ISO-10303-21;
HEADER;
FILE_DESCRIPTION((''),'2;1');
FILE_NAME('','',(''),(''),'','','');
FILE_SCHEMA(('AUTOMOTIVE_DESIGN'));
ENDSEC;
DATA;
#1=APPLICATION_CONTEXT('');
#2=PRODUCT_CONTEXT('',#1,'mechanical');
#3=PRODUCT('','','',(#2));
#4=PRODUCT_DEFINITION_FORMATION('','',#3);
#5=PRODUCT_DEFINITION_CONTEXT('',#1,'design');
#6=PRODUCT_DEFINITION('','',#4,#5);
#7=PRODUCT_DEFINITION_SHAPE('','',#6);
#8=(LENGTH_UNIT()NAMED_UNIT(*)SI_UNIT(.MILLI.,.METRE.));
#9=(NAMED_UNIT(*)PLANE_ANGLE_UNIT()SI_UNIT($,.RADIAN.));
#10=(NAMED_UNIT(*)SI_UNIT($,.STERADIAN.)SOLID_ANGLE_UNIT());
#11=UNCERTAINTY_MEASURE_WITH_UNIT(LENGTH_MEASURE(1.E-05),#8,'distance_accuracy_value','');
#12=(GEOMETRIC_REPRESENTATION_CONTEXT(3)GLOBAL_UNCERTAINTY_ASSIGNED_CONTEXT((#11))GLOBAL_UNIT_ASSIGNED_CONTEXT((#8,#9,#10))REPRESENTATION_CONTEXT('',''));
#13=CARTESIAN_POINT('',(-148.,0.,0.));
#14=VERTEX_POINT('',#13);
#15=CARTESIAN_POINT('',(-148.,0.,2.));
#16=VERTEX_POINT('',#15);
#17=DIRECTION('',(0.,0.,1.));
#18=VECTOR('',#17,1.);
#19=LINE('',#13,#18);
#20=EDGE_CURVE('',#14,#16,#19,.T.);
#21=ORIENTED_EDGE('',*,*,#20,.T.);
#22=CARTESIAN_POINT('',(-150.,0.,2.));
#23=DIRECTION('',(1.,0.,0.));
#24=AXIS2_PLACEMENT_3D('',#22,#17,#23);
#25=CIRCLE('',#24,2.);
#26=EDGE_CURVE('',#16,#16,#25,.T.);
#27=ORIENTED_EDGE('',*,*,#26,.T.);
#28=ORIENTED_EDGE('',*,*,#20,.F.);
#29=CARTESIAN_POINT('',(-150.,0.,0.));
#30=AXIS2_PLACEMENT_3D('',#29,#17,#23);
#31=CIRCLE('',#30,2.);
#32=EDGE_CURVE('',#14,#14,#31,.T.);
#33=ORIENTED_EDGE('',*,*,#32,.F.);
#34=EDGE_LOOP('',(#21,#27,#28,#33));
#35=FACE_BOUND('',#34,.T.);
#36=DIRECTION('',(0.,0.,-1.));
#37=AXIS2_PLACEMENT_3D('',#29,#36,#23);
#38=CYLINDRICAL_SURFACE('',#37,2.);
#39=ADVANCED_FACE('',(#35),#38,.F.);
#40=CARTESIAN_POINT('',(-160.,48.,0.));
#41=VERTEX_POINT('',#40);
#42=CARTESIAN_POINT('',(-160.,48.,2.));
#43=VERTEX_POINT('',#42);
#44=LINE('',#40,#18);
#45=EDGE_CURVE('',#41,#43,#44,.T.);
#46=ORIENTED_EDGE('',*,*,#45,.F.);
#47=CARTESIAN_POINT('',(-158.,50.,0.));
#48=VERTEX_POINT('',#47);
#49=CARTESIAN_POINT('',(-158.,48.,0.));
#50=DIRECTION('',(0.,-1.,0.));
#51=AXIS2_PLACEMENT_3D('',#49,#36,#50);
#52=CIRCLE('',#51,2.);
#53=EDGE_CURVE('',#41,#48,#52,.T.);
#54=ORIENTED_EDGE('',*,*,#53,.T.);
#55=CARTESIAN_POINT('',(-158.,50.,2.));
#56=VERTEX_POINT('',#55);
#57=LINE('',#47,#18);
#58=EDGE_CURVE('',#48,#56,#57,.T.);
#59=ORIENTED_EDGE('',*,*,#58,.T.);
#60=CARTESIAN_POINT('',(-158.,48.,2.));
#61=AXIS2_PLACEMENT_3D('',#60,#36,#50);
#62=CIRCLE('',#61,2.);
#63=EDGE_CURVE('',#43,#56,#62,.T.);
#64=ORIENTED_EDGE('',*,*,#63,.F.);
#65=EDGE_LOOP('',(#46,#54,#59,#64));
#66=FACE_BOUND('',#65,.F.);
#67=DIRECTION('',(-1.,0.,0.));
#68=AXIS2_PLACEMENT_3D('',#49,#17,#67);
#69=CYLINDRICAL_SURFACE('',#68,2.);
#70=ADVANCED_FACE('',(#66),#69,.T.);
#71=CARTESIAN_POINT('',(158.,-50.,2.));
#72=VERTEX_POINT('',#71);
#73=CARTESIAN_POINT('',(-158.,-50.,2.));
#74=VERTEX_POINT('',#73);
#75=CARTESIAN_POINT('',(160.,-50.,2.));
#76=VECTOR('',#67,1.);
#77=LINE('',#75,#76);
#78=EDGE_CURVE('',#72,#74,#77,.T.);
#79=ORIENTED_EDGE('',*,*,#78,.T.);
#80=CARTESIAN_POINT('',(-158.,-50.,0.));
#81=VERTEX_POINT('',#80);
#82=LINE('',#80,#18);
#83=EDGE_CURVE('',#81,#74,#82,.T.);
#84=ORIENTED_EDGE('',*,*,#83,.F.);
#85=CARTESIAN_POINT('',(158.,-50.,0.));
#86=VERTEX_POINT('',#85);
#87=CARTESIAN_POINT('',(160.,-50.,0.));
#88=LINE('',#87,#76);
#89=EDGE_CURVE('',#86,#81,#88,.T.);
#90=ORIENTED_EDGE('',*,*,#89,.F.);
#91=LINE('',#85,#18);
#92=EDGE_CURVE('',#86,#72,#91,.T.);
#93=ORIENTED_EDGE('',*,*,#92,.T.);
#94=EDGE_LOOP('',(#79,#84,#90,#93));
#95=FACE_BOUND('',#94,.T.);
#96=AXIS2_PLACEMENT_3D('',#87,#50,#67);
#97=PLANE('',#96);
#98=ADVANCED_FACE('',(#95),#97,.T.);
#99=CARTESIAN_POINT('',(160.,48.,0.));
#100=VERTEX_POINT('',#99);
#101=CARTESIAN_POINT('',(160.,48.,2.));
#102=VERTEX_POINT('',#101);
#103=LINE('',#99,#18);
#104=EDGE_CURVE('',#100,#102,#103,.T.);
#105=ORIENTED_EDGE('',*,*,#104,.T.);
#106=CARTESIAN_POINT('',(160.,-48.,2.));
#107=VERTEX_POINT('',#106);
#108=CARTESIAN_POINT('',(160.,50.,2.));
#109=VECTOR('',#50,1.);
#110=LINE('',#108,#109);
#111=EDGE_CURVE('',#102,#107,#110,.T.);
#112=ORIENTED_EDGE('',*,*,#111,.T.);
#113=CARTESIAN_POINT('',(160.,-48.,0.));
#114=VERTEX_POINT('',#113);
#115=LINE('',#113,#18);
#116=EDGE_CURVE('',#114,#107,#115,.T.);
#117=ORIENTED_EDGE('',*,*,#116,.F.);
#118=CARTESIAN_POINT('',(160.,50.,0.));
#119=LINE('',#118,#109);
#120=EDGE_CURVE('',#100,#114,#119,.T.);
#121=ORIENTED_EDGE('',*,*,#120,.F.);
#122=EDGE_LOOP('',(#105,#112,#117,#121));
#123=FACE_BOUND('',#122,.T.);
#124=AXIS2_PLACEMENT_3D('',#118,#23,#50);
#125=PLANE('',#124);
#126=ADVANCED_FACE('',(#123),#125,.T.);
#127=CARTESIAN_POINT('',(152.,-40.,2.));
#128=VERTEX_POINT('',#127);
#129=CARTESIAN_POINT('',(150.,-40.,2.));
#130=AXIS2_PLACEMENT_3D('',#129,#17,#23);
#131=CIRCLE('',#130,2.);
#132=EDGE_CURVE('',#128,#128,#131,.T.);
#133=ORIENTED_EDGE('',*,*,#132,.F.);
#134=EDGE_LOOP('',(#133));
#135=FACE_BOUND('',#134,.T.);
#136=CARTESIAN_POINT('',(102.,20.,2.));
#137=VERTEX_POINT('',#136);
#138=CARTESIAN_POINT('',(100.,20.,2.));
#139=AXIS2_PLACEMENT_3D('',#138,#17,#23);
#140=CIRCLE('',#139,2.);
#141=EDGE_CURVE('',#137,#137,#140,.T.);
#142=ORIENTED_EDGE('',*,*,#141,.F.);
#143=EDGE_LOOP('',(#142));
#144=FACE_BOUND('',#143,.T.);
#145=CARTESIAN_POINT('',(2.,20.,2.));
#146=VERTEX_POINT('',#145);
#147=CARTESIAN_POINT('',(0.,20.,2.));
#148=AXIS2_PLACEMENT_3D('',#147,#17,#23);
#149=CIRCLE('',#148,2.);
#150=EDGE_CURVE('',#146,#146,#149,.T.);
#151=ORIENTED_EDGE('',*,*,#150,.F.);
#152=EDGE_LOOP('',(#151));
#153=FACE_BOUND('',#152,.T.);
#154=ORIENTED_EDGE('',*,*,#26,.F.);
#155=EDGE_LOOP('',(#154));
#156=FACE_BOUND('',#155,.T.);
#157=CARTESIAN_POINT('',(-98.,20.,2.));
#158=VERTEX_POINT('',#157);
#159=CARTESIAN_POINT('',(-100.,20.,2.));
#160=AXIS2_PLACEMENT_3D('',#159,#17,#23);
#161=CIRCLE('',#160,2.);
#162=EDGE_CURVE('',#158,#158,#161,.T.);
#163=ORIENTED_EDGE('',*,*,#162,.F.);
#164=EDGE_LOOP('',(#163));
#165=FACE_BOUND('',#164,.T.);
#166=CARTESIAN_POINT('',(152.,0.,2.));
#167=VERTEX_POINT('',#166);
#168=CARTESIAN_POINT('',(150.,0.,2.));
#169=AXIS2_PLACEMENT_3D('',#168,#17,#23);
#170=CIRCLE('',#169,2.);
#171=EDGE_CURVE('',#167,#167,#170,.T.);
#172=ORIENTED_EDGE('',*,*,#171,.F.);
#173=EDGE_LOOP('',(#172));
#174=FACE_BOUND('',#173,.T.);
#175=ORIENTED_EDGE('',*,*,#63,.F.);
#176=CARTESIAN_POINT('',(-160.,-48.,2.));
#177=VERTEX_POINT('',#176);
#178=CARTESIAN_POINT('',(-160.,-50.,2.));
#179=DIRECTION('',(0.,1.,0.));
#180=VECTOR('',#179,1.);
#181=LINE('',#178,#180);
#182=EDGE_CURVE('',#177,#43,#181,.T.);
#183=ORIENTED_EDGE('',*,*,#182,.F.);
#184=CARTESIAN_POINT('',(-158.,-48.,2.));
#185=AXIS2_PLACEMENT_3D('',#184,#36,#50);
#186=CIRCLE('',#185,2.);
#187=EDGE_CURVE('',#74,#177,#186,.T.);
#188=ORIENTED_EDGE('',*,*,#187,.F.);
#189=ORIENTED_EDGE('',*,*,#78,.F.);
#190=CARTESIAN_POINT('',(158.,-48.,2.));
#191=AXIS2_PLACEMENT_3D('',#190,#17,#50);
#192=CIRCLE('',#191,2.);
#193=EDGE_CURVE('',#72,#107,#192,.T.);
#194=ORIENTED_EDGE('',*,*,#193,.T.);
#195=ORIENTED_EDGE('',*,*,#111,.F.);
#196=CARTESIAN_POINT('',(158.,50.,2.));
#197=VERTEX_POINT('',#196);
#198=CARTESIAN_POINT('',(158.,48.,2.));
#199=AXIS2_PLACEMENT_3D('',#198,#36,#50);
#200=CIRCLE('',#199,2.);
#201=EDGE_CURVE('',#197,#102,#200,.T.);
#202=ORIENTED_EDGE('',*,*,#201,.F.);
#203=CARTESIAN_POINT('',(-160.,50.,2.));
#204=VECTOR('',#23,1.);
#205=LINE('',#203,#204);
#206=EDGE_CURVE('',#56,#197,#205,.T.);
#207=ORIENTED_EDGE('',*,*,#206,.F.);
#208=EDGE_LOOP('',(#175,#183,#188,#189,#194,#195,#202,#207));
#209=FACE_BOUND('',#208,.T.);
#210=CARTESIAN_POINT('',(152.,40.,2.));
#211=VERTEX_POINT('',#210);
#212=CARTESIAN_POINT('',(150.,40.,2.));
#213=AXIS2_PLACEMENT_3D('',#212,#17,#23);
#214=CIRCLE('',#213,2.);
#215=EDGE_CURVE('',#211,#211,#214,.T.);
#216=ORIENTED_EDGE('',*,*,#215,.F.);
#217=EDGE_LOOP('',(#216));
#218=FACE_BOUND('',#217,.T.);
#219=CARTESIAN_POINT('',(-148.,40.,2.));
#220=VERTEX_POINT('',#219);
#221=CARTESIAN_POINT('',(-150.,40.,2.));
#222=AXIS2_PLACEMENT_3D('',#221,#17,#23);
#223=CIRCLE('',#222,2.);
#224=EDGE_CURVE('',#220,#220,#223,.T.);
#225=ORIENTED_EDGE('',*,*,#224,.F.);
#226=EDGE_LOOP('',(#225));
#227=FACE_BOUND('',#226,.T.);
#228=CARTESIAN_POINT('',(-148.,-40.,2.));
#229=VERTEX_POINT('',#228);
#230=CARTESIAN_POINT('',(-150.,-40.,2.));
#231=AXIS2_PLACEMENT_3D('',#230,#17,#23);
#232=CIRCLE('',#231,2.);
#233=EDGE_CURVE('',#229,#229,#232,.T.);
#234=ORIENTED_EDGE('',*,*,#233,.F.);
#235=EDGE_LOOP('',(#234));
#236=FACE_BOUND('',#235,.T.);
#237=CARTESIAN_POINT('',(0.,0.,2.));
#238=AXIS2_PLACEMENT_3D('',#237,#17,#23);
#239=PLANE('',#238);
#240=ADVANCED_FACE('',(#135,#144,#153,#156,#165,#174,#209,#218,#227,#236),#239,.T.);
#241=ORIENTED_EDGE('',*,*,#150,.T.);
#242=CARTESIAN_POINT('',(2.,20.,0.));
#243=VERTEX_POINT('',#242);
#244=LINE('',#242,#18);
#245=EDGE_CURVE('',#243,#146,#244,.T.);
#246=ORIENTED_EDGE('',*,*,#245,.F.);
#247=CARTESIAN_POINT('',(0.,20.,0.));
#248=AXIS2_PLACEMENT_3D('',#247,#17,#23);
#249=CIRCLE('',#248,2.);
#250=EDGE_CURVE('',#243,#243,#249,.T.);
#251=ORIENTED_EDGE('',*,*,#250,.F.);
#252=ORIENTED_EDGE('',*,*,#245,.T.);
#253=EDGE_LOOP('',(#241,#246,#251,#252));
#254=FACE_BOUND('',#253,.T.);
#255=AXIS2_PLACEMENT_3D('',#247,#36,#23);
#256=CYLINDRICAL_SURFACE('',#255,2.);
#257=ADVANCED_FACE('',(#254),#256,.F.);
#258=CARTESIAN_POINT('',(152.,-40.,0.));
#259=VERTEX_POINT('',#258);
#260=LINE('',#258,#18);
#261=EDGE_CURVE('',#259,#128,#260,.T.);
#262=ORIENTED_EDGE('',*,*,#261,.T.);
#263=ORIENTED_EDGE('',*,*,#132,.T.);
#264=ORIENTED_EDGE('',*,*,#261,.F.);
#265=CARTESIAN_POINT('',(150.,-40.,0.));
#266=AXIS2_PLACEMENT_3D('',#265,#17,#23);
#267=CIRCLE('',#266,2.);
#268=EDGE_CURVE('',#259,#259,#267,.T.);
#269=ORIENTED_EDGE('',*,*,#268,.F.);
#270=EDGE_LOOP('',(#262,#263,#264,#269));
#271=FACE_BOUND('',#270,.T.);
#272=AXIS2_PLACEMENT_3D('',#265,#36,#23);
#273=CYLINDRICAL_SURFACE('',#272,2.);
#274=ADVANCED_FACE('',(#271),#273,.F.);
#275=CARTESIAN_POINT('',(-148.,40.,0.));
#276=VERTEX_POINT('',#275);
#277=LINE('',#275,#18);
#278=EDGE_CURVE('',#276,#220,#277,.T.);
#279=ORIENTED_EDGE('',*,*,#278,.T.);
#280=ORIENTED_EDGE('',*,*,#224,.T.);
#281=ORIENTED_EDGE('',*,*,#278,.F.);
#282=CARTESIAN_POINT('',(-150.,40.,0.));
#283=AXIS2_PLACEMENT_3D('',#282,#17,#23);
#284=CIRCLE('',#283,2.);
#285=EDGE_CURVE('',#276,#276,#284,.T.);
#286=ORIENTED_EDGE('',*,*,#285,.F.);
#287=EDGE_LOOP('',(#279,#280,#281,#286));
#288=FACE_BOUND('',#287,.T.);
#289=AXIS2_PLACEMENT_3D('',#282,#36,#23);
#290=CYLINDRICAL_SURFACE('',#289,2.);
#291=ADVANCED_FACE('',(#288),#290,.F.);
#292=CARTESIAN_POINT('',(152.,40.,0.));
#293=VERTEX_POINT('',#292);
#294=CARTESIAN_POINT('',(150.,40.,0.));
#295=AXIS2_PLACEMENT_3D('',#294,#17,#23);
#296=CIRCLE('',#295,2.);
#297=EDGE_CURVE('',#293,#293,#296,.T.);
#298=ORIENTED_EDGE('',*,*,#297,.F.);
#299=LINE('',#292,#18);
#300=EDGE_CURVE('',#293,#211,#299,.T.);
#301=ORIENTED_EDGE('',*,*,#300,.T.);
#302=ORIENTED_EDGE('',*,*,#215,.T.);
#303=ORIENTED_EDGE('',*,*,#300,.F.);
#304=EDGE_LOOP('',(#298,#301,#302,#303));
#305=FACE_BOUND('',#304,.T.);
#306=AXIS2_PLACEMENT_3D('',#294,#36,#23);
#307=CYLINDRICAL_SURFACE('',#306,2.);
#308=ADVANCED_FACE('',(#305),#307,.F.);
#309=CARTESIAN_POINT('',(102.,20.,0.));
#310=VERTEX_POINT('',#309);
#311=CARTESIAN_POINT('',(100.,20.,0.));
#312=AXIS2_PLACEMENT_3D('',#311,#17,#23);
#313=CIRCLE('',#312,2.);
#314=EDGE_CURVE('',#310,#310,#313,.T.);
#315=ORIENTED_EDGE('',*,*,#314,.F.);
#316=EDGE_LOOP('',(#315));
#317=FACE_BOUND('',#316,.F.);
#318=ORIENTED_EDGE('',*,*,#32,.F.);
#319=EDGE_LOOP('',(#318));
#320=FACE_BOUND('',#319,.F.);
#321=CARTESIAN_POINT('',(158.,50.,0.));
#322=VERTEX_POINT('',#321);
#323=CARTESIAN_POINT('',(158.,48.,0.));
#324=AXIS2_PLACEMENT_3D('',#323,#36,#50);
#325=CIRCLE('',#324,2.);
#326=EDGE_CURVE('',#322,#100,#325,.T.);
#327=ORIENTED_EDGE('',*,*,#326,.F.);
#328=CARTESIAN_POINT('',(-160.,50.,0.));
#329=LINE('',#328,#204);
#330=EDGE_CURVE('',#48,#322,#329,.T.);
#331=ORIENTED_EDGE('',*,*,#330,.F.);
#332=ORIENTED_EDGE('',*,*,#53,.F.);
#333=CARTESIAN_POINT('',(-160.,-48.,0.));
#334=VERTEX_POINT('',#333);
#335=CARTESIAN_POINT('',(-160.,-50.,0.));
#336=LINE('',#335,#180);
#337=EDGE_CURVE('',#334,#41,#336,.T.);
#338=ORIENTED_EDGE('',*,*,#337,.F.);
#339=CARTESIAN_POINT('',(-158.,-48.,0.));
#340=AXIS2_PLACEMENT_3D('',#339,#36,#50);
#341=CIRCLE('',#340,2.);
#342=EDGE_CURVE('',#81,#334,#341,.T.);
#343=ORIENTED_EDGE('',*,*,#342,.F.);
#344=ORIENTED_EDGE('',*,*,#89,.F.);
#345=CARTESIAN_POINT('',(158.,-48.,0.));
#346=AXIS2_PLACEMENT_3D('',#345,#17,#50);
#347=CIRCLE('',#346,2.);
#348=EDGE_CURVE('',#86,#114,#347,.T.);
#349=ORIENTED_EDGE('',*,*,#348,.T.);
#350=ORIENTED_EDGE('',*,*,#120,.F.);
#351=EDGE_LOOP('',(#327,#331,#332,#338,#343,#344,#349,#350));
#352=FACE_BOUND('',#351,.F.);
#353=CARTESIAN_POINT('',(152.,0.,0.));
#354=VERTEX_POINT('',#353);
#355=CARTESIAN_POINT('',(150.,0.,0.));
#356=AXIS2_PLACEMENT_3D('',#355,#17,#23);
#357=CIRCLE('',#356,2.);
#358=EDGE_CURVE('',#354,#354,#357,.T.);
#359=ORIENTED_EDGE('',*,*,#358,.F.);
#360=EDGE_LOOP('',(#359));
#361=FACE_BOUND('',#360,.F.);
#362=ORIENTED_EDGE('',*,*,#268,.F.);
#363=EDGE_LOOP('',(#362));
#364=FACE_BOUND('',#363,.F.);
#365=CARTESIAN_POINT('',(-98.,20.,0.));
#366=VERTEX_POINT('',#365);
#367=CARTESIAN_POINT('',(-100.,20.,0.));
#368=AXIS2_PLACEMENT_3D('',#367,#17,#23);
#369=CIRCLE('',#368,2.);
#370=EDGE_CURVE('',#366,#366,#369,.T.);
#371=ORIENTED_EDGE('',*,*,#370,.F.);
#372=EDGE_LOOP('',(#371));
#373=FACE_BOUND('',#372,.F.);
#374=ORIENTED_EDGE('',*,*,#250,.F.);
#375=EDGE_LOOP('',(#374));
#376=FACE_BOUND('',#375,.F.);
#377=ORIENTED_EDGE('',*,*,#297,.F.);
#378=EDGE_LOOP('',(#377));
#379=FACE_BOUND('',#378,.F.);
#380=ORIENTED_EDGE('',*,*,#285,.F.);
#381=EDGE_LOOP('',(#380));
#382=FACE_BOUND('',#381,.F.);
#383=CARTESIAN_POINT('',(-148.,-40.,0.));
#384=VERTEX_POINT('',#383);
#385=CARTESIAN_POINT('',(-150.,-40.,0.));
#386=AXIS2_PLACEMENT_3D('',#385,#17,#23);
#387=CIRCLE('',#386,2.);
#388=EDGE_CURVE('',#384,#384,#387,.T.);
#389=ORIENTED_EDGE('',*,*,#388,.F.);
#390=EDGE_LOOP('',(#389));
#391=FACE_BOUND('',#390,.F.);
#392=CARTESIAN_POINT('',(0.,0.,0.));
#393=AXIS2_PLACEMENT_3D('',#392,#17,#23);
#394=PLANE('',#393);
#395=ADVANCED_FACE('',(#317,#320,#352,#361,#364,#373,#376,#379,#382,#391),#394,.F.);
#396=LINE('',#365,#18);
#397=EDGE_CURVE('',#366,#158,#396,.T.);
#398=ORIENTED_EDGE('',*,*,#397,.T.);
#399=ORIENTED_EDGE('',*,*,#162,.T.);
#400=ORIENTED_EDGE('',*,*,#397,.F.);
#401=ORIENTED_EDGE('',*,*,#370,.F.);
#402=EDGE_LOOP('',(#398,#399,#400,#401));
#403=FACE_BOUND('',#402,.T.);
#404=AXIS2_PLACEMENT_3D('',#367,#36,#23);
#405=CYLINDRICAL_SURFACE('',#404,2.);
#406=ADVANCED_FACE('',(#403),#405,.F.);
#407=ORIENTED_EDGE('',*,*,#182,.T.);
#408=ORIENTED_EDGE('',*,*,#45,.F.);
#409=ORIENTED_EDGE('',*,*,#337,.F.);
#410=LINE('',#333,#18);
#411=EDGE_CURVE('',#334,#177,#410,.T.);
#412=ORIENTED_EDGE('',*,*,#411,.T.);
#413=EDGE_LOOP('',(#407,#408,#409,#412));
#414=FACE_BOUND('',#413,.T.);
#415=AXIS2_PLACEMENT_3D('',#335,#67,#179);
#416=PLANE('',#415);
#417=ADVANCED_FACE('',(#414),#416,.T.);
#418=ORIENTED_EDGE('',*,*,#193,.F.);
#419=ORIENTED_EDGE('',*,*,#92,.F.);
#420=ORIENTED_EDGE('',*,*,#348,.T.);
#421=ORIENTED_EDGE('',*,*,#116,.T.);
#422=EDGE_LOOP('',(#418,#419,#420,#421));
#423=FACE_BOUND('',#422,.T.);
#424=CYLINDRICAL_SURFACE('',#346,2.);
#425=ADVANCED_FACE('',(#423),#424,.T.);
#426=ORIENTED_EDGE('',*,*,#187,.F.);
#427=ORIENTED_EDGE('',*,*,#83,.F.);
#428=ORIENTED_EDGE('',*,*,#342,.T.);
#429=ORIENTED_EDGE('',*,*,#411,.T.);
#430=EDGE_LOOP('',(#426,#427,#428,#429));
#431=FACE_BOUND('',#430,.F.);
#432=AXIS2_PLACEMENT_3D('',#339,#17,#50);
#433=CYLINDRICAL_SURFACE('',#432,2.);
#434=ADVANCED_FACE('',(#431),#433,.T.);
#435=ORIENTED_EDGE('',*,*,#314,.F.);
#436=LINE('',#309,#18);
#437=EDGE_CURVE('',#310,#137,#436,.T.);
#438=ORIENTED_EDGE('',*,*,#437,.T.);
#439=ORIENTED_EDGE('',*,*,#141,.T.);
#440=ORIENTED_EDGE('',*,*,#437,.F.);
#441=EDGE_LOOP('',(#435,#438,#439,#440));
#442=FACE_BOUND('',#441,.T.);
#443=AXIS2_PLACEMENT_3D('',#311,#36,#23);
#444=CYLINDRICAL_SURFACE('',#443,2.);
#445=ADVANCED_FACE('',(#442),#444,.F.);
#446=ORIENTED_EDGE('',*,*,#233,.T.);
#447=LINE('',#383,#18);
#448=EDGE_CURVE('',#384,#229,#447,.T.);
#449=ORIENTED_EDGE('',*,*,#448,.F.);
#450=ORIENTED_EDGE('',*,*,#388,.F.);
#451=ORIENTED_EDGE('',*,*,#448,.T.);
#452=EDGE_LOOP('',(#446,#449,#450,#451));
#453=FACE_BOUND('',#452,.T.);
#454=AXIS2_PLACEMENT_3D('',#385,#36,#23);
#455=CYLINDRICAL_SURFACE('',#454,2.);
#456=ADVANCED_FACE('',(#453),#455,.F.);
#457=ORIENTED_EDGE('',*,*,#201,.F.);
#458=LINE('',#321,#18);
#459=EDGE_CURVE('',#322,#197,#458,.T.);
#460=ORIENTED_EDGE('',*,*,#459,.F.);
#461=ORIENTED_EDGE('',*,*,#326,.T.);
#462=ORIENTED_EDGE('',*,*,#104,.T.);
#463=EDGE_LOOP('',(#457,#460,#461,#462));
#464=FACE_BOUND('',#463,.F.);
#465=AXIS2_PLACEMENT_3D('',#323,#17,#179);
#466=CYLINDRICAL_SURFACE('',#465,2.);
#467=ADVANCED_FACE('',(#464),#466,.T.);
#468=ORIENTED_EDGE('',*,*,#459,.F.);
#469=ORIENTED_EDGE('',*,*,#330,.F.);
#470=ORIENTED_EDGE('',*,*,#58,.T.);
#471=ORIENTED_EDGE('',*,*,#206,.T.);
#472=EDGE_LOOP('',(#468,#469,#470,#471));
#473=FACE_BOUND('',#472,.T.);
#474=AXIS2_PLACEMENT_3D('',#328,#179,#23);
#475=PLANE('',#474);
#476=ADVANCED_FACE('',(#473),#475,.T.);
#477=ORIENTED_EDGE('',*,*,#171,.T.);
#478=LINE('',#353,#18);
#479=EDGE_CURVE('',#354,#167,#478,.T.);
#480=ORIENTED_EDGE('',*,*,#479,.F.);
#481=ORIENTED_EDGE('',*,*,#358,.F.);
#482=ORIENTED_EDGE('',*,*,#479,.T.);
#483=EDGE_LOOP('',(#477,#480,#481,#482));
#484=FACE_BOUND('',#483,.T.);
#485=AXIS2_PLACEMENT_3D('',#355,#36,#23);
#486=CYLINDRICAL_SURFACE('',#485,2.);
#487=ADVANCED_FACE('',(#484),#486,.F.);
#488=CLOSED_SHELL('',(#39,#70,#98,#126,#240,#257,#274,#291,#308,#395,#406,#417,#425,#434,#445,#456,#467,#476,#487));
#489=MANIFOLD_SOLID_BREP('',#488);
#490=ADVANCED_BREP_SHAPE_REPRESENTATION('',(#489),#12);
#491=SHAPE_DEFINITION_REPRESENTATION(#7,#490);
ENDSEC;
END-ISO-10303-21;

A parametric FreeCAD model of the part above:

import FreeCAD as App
import Part
import Sketcher

V = App.Vector
Q = App.Units.Quantity


def edges_at(feature, points):
    """Names of the edges that pass closest to the given points."""
    edges = feature.Shape.Edges
    near = lambda p: min(range(len(edges)), key=lambda i: edges[i].distToShape(Part.Vertex(*p))[0])
    return sorted({f"Edge{near(p) + 1}" for p in points})

doc = App.newDocument("Part")
body = doc.addObject("PartDesign::Body", "Body")

# Sketch on XY plane
sketch1 = body.newObject("Sketcher::SketchObject", "Sketch")
sketch1.AttachmentSupport = (doc.getObject("XY_Plane"), [""])
sketch1.MapMode = "FlatFace"
sketch1.addGeometry(Part.LineSegment(V(-160, -50, 0), V(160, -50, 0)), False)
sketch1.addGeometry(Part.LineSegment(V(160, -50, 0), V(160, 50, 0)), False)
sketch1.addGeometry(Part.LineSegment(V(160, 50, 0), V(-160, 50, 0)), False)
sketch1.addGeometry(Part.LineSegment(V(-160, 50, 0), V(-160, -50, 0)), False)
sketch1.addGeometry(Part.Circle(V(-150, -40, 0), V(0, 0, 1), 2), False)
sketch1.addGeometry(Part.Circle(V(150, -40, 0), V(0, 0, 1), 2), False)
sketch1.addGeometry(Part.Circle(V(-150, 0, 0), V(0, 0, 1), 2), False)
sketch1.addGeometry(Part.Circle(V(-100, 20, 0), V(0, 0, 1), 2), False)
sketch1.addGeometry(Part.Circle(V(-150, 40, 0), V(0, 0, 1), 2), False)
sketch1.addGeometry(Part.Circle(V(0, 20, 0), V(0, 0, 1), 2), False)
sketch1.addGeometry(Part.Circle(V(150, 0, 0), V(0, 0, 1), 2), False)
sketch1.addGeometry(Part.Circle(V(100, 20, 0), V(0, 0, 1), 2), False)
sketch1.addGeometry(Part.Circle(V(150, 40, 0), V(0, 0, 1), 2), False)
sketch1.addConstraint(Sketcher.Constraint("Coincident", 0, 2, 1, 1))
sketch1.addConstraint(Sketcher.Constraint("Coincident", 1, 2, 2, 1))
sketch1.addConstraint(Sketcher.Constraint("Coincident", 2, 2, 3, 1))
sketch1.addConstraint(Sketcher.Constraint("Coincident", 3, 2, 0, 1))
sketch1.addConstraint(Sketcher.Constraint("Horizontal", 0))
sketch1.addConstraint(Sketcher.Constraint("Vertical", 1))
sketch1.addConstraint(Sketcher.Constraint("Horizontal", 2))
sketch1.addConstraint(Sketcher.Constraint("Vertical", 3))
sketch1.addConstraint(Sketcher.Constraint("Equal", 4, 5))
sketch1.addConstraint(Sketcher.Constraint("Equal", 5, 6))
sketch1.addConstraint(Sketcher.Constraint("Equal", 6, 7))
sketch1.addConstraint(Sketcher.Constraint("Equal", 7, 8))
sketch1.addConstraint(Sketcher.Constraint("Equal", 8, 9))
sketch1.addConstraint(Sketcher.Constraint("Equal", 9, 10))
sketch1.addConstraint(Sketcher.Constraint("Equal", 10, 11))
sketch1.addConstraint(Sketcher.Constraint("Equal", 11, 12))
sketch1.addConstraint(Sketcher.Constraint("Symmetric", 5, 3, 8, 3, -1, 1))
sketch1.addConstraint(Sketcher.Constraint("Symmetric", 6, 3, 10, 3, -1, 1))
sketch1.addConstraint(Sketcher.Constraint("Symmetric", 4, 3, 12, 3, -1, 1))
sketch1.addConstraint(Sketcher.Constraint("Symmetric", 0, 2, 2, 2, -1, 1))
sketch1.addConstraint(Sketcher.Constraint("Symmetric", 4, 3, 5, 3, -2))
sketch1.addConstraint(Sketcher.Constraint("Symmetric", 7, 3, 11, 3, -2))
sketch1.addConstraint(Sketcher.Constraint("PointOnObject", 6, 3, -1))
sketch1.addConstraint(Sketcher.Constraint("PointOnObject", 9, 3, -2))
sketch1.addConstraint(Sketcher.Constraint("Horizontal", 7, 3, 9, 3))
sketch1.addConstraint(Sketcher.Constraint("Vertical", 4, 3, 6, 3))
sketch1.addConstraint(Sketcher.Constraint("Diameter", 4, Q("4 mm")))
sketch1.addConstraint(Sketcher.Constraint("DistanceX", 0, 1, 0, 2, Q("320 mm")))
sketch1.addConstraint(Sketcher.Constraint("DistanceY", 1, 1, 1, 2, Q("100 mm")))
sketch1.addConstraint(Sketcher.Constraint("DistanceX", 7, 3, -1, 1, Q("100 mm")))
sketch1.addConstraint(Sketcher.Constraint("DistanceX", 6, 3, 7, 3, Q("50 mm")))
sketch1.addConstraint(Sketcher.Constraint("DistanceY", 4, 3, 7, 3, Q("60 mm")))
sketch1.addConstraint(Sketcher.Constraint("DistanceY", 0, 2, 5, 3, Q("10 mm")))
pad1 = body.newObject("PartDesign::Pad", "Pad")
pad1.Profile = sketch1
pad1.Length = 2
doc.recompute()

fillet = body.newObject("PartDesign::Fillet", "Fillet")
fillet.Base = (pad1, edges_at(pad1, [
    (160, 50, 1),
    (160, -50, 1),
    (-160, 50, 1),
    (-160, -50, 1),
]))
fillet.Radius = 2

doc.recompute()
